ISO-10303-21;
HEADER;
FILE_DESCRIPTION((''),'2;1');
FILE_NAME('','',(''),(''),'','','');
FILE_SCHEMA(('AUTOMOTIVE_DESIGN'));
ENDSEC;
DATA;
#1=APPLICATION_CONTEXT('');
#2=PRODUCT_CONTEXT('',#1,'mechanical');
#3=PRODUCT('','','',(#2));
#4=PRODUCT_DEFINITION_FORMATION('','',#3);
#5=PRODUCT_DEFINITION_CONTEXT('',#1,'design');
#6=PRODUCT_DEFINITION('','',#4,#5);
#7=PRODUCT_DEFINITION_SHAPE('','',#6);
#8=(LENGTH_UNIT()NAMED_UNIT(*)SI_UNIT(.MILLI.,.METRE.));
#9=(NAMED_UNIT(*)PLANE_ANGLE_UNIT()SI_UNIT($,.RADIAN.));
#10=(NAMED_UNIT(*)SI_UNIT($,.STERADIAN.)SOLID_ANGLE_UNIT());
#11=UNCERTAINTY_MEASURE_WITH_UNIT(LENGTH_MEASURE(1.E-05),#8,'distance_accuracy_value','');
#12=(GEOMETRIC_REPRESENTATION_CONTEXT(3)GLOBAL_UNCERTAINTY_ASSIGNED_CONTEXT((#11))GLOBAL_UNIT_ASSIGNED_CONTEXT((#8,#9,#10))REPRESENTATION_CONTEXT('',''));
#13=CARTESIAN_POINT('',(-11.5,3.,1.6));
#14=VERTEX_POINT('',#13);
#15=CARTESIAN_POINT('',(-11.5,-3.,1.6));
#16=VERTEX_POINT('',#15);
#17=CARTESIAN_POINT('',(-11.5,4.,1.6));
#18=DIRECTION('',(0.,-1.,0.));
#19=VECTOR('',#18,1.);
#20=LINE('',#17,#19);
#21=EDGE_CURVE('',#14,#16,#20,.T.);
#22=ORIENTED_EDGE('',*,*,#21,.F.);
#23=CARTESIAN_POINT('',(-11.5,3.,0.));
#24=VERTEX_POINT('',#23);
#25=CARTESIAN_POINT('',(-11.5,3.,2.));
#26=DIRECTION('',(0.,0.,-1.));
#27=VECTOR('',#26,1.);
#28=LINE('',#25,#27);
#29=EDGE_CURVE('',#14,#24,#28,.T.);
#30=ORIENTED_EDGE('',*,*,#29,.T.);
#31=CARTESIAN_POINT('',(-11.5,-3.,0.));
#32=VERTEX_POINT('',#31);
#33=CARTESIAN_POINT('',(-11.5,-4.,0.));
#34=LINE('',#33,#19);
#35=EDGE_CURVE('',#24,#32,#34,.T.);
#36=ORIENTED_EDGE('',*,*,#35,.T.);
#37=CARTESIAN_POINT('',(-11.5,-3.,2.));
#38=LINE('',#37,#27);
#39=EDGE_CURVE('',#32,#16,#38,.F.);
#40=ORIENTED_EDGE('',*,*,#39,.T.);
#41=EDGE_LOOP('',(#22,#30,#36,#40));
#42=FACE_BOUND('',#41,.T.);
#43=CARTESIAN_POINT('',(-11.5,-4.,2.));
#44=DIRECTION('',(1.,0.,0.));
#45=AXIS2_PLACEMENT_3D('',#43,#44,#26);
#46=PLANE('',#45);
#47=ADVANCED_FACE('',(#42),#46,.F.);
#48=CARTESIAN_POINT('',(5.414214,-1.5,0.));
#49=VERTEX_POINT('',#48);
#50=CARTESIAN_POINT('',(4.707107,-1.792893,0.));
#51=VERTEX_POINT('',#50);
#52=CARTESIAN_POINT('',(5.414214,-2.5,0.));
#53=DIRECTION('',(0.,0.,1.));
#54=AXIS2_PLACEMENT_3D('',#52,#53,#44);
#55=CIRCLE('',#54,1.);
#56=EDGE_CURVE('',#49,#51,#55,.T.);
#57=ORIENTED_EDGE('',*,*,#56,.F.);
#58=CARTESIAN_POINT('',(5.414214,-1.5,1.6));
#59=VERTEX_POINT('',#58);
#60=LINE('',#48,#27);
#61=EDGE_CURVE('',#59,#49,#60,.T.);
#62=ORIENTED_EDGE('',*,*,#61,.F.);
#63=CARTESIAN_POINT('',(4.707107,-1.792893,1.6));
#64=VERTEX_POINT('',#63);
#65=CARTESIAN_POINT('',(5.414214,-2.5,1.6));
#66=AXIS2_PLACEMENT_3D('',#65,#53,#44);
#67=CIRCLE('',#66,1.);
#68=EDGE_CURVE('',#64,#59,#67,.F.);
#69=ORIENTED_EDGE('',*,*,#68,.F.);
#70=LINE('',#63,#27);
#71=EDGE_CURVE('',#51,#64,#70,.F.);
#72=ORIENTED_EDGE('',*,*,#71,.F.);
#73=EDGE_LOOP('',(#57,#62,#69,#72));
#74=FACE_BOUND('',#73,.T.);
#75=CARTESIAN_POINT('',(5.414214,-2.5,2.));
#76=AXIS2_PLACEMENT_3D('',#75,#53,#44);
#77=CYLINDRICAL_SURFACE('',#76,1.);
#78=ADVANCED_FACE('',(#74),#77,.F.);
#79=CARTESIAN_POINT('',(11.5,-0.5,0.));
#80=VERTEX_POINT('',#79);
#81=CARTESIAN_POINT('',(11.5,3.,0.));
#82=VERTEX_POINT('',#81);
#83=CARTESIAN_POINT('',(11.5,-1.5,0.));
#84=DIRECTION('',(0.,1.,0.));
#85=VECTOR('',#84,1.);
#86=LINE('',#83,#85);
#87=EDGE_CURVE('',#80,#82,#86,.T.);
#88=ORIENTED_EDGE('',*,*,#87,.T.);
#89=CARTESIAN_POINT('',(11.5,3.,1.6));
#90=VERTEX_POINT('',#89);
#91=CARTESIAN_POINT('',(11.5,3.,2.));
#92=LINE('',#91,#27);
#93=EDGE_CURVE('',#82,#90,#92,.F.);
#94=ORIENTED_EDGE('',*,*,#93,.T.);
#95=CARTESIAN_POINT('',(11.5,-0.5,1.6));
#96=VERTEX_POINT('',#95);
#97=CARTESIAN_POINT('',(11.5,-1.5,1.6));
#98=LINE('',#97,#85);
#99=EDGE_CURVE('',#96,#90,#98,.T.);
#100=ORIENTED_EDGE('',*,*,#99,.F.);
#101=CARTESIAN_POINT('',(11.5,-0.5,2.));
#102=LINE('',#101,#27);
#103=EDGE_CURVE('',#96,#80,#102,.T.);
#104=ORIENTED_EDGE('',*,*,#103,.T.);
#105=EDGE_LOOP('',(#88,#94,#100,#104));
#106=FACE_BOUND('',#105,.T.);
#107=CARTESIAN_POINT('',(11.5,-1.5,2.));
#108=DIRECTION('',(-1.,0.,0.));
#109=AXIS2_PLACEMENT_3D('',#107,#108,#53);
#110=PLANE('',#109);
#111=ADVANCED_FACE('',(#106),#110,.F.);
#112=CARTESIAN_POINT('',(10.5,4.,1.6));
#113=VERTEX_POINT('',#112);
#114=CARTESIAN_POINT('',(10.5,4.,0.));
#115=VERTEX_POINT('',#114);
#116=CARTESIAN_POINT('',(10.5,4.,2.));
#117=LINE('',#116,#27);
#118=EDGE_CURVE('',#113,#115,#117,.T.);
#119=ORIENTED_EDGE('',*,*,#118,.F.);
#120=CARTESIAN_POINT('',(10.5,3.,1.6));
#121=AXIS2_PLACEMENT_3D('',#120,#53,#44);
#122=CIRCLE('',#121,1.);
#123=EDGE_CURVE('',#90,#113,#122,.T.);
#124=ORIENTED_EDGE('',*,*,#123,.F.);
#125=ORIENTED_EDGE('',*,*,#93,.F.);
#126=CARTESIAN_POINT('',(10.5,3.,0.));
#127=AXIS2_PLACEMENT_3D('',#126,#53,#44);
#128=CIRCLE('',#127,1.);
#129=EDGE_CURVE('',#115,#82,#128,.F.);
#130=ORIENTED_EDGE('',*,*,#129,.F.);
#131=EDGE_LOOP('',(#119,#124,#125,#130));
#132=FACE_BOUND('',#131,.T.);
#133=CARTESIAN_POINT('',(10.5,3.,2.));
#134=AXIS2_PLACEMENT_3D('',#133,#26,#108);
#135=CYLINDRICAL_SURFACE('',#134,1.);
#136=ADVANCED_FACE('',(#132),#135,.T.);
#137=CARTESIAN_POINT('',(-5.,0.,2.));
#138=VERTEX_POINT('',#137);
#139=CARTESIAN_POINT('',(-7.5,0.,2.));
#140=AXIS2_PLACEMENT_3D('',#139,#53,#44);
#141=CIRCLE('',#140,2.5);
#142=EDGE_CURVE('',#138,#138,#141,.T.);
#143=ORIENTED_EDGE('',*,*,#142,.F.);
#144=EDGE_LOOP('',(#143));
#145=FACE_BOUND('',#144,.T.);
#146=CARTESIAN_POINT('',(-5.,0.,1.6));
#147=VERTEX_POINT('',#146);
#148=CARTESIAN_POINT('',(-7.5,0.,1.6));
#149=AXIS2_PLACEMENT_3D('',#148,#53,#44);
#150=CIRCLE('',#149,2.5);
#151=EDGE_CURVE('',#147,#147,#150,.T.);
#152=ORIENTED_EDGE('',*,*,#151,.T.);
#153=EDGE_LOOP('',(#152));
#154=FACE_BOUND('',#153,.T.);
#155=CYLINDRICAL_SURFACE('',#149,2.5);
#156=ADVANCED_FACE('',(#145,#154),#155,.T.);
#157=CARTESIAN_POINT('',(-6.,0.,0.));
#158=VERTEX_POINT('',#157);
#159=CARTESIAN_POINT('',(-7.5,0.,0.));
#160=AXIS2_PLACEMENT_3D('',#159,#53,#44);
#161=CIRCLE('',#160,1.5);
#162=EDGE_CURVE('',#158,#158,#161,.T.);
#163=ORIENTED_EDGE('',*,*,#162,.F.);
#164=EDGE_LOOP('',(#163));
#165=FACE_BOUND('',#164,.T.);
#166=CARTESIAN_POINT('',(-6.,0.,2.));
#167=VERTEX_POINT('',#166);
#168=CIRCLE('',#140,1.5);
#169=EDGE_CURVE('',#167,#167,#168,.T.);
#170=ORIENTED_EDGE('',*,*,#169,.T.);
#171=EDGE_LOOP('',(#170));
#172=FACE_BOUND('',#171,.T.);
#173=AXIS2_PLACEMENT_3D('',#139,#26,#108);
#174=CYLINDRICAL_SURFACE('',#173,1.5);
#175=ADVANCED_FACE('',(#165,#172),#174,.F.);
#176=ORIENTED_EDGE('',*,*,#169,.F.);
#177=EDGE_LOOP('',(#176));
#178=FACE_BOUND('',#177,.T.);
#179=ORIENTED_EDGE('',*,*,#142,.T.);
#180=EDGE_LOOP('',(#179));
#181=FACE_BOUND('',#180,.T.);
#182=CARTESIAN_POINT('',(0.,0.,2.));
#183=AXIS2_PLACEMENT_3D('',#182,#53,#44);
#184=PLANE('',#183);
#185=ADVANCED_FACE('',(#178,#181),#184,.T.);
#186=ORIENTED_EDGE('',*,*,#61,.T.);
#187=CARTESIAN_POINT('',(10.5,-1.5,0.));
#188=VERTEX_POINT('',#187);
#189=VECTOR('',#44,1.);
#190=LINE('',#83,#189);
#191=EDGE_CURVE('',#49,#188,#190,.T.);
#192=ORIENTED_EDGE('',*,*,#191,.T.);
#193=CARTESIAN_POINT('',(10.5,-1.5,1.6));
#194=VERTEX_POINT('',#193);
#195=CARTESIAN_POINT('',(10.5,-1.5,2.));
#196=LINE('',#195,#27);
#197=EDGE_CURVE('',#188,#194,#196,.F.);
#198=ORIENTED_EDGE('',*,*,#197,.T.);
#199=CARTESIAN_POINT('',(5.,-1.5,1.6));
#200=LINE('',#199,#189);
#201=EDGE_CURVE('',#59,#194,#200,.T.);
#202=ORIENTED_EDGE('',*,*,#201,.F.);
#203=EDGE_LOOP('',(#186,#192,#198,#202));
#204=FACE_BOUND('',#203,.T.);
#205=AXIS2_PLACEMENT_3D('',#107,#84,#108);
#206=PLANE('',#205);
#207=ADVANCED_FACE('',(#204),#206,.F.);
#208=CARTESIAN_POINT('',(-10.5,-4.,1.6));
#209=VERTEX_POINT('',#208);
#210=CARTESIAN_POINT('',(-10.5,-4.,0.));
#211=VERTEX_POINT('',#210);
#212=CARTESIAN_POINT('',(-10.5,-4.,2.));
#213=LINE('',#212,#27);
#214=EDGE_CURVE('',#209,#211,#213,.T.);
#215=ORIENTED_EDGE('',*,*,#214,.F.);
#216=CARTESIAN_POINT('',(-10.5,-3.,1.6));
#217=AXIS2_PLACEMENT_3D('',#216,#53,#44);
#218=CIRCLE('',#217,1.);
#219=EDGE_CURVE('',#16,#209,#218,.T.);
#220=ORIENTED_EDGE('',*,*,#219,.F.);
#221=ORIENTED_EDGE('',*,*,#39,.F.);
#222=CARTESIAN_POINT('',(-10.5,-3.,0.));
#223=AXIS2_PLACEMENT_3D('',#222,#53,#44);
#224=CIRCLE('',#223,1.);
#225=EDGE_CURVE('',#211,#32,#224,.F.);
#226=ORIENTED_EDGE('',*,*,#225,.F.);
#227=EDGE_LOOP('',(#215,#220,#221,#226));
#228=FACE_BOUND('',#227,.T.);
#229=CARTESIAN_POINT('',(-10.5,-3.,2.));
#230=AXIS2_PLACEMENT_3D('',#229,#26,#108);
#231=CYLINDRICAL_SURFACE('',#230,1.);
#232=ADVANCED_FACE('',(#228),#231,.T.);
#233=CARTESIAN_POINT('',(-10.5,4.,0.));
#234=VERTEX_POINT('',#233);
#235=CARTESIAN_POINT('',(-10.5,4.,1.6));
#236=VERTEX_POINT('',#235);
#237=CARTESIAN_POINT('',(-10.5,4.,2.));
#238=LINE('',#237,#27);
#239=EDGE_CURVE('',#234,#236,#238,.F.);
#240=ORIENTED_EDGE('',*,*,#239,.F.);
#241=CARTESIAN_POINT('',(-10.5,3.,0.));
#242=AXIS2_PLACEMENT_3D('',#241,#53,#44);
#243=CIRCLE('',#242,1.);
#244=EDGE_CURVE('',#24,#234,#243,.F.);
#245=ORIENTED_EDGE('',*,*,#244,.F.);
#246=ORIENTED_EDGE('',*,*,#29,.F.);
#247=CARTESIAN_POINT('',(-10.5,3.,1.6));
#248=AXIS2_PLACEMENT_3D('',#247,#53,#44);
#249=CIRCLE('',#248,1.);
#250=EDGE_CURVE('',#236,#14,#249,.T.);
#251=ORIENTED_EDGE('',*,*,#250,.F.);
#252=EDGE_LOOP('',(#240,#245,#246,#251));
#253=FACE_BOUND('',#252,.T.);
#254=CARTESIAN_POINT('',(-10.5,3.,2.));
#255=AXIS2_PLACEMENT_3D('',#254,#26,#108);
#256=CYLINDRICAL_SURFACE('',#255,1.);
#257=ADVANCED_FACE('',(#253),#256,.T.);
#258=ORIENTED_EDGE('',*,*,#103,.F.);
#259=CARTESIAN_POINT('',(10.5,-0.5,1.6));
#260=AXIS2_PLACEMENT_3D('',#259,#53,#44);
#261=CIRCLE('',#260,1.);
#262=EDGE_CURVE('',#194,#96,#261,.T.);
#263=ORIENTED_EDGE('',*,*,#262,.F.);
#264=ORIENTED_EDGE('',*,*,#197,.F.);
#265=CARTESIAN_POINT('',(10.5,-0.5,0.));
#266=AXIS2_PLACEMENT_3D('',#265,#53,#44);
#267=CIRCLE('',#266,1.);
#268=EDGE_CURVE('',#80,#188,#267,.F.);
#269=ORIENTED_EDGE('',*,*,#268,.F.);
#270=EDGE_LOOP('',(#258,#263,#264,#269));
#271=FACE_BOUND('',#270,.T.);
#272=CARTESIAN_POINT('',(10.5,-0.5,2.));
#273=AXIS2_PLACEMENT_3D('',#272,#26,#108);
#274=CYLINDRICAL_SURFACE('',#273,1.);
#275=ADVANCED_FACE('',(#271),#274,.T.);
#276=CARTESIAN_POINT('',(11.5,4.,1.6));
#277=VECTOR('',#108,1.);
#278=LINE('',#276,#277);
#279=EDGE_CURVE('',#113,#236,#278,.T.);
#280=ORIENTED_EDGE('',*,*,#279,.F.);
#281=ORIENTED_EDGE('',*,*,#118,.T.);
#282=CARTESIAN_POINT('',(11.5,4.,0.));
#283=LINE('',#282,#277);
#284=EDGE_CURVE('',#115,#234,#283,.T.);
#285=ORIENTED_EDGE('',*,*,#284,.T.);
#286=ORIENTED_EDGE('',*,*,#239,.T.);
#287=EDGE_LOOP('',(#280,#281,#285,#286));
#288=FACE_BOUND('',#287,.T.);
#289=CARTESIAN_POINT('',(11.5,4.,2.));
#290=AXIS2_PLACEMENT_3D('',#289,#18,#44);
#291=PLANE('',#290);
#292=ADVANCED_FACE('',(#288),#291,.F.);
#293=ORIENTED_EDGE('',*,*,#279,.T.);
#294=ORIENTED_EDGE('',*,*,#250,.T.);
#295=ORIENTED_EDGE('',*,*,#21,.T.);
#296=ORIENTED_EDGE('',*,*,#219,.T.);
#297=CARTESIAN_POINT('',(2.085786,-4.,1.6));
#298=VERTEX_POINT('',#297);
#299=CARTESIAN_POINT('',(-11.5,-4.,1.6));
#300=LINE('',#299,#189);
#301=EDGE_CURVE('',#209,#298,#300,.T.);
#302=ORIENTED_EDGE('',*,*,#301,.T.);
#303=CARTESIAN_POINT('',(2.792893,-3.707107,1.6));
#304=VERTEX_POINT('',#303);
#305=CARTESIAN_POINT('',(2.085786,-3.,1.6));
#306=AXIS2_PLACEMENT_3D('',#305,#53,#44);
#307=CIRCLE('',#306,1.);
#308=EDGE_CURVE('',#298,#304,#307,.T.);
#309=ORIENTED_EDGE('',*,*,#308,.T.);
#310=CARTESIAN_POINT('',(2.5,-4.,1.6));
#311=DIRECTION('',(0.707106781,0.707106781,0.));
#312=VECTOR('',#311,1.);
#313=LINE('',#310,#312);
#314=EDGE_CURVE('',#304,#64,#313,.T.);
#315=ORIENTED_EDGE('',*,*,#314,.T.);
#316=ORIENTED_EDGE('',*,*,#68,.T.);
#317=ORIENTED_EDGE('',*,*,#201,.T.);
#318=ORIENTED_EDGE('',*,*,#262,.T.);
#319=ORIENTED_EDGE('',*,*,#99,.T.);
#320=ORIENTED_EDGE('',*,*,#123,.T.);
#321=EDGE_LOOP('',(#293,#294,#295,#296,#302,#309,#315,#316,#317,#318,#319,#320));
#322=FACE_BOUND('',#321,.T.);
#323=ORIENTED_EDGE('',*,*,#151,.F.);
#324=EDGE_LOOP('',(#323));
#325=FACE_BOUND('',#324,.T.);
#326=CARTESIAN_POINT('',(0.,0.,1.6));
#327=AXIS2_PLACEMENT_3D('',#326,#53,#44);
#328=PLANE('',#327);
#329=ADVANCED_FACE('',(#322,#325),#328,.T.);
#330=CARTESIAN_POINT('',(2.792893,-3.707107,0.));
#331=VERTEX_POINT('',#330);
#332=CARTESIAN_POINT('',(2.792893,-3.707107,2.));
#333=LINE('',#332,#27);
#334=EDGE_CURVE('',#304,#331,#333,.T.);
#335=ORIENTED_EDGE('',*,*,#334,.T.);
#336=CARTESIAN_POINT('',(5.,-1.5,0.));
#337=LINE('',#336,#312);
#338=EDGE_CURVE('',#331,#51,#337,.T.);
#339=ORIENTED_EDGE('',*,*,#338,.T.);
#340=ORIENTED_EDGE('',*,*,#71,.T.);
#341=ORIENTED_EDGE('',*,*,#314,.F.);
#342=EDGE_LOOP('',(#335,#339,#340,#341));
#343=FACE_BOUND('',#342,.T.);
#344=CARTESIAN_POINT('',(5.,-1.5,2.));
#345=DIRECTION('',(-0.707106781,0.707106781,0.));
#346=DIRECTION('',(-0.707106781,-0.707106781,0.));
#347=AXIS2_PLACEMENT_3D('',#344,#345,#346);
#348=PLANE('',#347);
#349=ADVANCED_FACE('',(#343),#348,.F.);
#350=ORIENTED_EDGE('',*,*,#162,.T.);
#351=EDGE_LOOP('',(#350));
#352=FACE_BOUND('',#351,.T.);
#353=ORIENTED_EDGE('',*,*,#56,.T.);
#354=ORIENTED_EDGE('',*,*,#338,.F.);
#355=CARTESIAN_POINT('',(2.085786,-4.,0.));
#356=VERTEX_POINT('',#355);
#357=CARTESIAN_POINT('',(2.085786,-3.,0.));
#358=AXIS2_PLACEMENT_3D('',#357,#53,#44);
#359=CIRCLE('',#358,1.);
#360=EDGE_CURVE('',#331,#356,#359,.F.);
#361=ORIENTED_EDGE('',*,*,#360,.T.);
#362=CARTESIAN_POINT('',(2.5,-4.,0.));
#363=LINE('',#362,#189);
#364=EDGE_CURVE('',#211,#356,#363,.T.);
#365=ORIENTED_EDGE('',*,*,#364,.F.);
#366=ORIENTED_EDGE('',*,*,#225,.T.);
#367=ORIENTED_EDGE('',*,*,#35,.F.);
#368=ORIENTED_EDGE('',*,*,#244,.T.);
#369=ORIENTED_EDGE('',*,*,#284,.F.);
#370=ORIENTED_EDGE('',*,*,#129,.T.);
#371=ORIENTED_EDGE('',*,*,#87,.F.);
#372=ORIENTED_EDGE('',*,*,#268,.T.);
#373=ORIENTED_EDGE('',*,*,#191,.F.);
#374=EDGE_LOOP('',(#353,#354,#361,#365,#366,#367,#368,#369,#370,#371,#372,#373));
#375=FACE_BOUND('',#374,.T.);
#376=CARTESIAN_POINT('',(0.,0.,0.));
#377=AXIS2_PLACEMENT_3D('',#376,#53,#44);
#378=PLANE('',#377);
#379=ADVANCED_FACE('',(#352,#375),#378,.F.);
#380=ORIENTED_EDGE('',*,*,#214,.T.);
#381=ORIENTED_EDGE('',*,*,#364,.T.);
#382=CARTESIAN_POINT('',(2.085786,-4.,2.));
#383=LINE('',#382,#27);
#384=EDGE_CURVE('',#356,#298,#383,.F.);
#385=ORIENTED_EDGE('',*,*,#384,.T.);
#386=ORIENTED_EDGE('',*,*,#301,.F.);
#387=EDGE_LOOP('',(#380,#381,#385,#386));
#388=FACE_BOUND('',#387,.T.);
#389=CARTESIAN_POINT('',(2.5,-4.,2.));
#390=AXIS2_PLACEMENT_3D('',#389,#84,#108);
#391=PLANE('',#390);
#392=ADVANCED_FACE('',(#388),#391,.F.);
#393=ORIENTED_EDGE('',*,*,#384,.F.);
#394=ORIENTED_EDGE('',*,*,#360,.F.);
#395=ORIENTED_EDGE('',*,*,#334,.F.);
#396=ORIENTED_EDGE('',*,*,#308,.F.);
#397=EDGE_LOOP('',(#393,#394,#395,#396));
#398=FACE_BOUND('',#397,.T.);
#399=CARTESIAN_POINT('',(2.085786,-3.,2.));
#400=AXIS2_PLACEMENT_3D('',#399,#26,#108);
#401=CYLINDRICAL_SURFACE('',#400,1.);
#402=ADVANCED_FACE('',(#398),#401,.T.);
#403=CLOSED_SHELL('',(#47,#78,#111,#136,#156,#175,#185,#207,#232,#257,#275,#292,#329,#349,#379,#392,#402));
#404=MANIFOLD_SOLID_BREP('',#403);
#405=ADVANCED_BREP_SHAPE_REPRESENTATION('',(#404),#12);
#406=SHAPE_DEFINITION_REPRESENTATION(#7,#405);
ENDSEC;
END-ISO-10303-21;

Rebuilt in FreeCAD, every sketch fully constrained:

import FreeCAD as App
import Part
import Sketcher

V = App.Vector
Q = App.Units.Quantity


def edges_at(feature, points):
    """Names of the edges that pass closest to the given points."""
    edges = feature.Shape.Edges
    near = lambda p: min(range(len(edges)), key=lambda i: edges[i].distToShape(Part.Vertex(*p))[0])
    return sorted({f"Edge{near(p) + 1}" for p in points})

doc = App.newDocument("Part")
params = doc.addObject("Spreadsheet::Sheet", "Params")
for row, (alias, value) in enumerate([
    ("sketch1_diameter", "3 mm"),
    ("sketch1_width", "23 mm"),
    ("sketch1_width2", "14 mm"),
    ("sketch1_height", "8 mm"),
    ("sketch1_width3", "6.5 mm"),
    ("pad1_length", "2 mm"),
    ("sketch2_diameter", "5 mm"),
    ("sketch2_width", "14 mm"),
    ("sketch2_width2", "23 mm"),
    ("sketch2_height", "8 mm"),
    ("sketch2_width3", "6.5 mm"),
    ("pocket1_length", "0.4 mm"),
    ("fillet_radius", "1 mm"),
], start=1):
    params.set(f"A{row}", alias)
    params.set(f"B{row}", "=" + value)
    params.setAlias(f"B{row}", alias)

body = doc.addObject("PartDesign::Body", "Body")

# Sketch on XY plane
sketch1 = body.newObject("Sketcher::SketchObject", "Sketch")
sketch1.AttachmentSupport = (doc.getObject("XY_Plane"), [""])
sketch1.MapMode = "FlatFace"
sketch1.addGeometry(Part.LineSegment(V(5, -1.5, 0), V(11.5, -1.5, 0)), False)
sketch1.addGeometry(Part.LineSegment(V(11.5, -1.5, 0), V(11.5, 4, 0)), False)
sketch1.addGeometry(Part.LineSegment(V(11.5, 4, 0), V(-11.5, 4, 0)), False)
sketch1.addGeometry(Part.LineSegment(V(-11.5, 4, 0), V(-11.5, -4, 0)), False)
sketch1.addGeometry(Part.LineSegment(V(-11.5, -4, 0), V(2.5, -4, 0)), False)
sketch1.addGeometry(Part.LineSegment(V(2.5, -4, 0), V(5, -1.5, 0)), False)
sketch1.addGeometry(Part.Circle(V(-7.5, 0, 0), V(0, 0, 1), 1.5), False)
sketch1.addConstraint(Sketcher.Constraint("Coincident", 0, 2, 1, 1))
sketch1.addConstraint(Sketcher.Constraint("Coincident", 1, 2, 2, 1))
sketch1.addConstraint(Sketcher.Constraint("Coincident", 2, 2, 3, 1))
sketch1.addConstraint(Sketcher.Constraint("Coincident", 3, 2, 4, 1))
sketch1.addConstraint(Sketcher.Constraint("Coincident", 4, 2, 5, 1))
sketch1.addConstraint(Sketcher.Constraint("Coincident", 5, 2, 0, 1))
sketch1.addConstraint(Sketcher.Constraint("Horizontal", 0))
sketch1.addConstraint(Sketcher.Constraint("Vertical", 1))
sketch1.addConstraint(Sketcher.Constraint("Horizontal", 2))
sketch1.addConstraint(Sketcher.Constraint("Vertical", 3))
sketch1.addConstraint(Sketcher.Constraint("Horizontal", 4))
sketch1.addConstraint(Sketcher.Constraint("Symmetric", 1, 2, 3, 2, -1, 1))
sketch1.addConstraint(Sketcher.Constraint("PointOnObject", 6, 3, -1))
sketch1.addConstraint(Sketcher.Constraint("Diameter", 6, 3.0))
sketch1.addConstraint(Sketcher.Constraint("DistanceX", 2, 2, 2, 1, 23.0))
sketch1.addConstraint(Sketcher.Constraint("DistanceX", 4, 1, 4, 2, 14.0))
sketch1.addConstraint(Sketcher.Constraint("DistanceY", 3, 2, 3, 1, 8.0))
sketch1.addConstraint(Sketcher.Constraint("Angle", 5, Q("45 deg")))
sketch1.addConstraint(Sketcher.Constraint("DistanceX", 0, 1, 0, 2, 6.5))
sketch1.addConstraint(Sketcher.Constraint("DistanceX", 6, 3, 0, 2, 19.0))
sketch1.setExpression("Constraints[13]", "Params.sketch1_diameter")
sketch1.setExpression("Constraints[14]", "Params.sketch1_width")
sketch1.setExpression("Constraints[15]", "Params.sketch1_width2")
sketch1.setExpression("Constraints[16]", "Params.sketch1_height")
sketch1.setExpression("Constraints[18]", "Params.sketch1_width3")
pad1 = body.newObject("PartDesign::Pad", "Pad")
pad1.Profile = sketch1
pad1.setExpression("Length", "Params.pad1_length")

# Sketch on XY plane
sketch2 = body.newObject("Sketcher::SketchObject", "Sketch001")
sketch2.AttachmentSupport = (doc.getObject("XY_Plane"), [""])
sketch2.MapMode = "FlatFace"
sketch2.AttachmentOffset = App.Placement(V(0, 0, 2), App.Rotation())
sketch2.addGeometry(Part.LineSegment(V(-11.5, 4, 0), V(-11.5, -4, 0)), False)
sketch2.addGeometry(Part.LineSegment(V(-11.5, -4, 0), V(2.5, -4, 0)), False)
sketch2.addGeometry(Part.LineSegment(V(2.5, -4, 0), V(5, -1.5, 0)), False)
sketch2.addGeometry(Part.LineSegment(V(5, -1.5, 0), V(11.5, -1.5, 0)), False)
sketch2.addGeometry(Part.LineSegment(V(11.5, -1.5, 0), V(11.5, 4, 0)), False)
sketch2.addGeometry(Part.LineSegment(V(11.5, 4, 0), V(-11.5, 4, 0)), False)
sketch2.addGeometry(Part.Circle(V(-7.5, 0, 0), V(0, 0, 1), 2.5), False)
sketch2.addConstraint(Sketcher.Constraint("Coincident", 0, 2, 1, 1))
sketch2.addConstraint(Sketcher.Constraint("Coincident", 1, 2, 2, 1))
sketch2.addConstraint(Sketcher.Constraint("Coincident", 2, 2, 3, 1))
sketch2.addConstraint(Sketcher.Constraint("Coincident", 3, 2, 4, 1))
sketch2.addConstraint(Sketcher.Constraint("Coincident", 4, 2, 5, 1))
sketch2.addConstraint(Sketcher.Constraint("Coincident", 5, 2, 0, 1))
sketch2.addConstraint(Sketcher.Constraint("Vertical", 0))
sketch2.addConstraint(Sketcher.Constraint("Horizontal", 1))
sketch2.addConstraint(Sketcher.Constraint("Horizontal", 3))
sketch2.addConstraint(Sketcher.Constraint("Vertical", 4))
sketch2.addConstraint(Sketcher.Constraint("Horizontal", 5))
sketch2.addConstraint(Sketcher.Constraint("Symmetric", 0, 2, 4, 2, -1, 1))
sketch2.addConstraint(Sketcher.Constraint("PointOnObject", 6, 3, -1))
sketch2.addConstraint(Sketcher.Constraint("Diameter", 6, 5.0))
sketch2.addConstraint(Sketcher.Constraint("DistanceX", 1, 1, 1, 2, 14.0))
sketch2.addConstraint(Sketcher.Constraint("DistanceX", 5, 2, 5, 1, 23.0))
sketch2.addConstraint(Sketcher.Constraint("DistanceY", 0, 2, 0, 1, 8.0))
sketch2.addConstraint(Sketcher.Constraint("Angle", 2, Q("45 deg")))
sketch2.addConstraint(Sketcher.Constraint("DistanceX", 3, 1, 3, 2, 6.5))
sketch2.addConstraint(Sketcher.Constraint("DistanceX", 0, 2, 6, 3, 4.0))
sketch2.setExpression("Constraints[13]", "Params.sketch2_diameter")
sketch2.setExpression("Constraints[14]", "Params.sketch2_width")
sketch2.setExpression("Constraints[15]", "Params.sketch2_width2")
sketch2.setExpression("Constraints[16]", "Params.sketch2_height")
sketch2.setExpression("Constraints[18]", "Params.sketch2_width3")
pocket1 = body.newObject("PartDesign::Pocket", "Pocket")
pocket1.Profile = sketch2
pocket1.setExpression("Length", "Params.pocket1_length")
doc.recompute()

fillet = body.newObject("PartDesign::Fillet", "Fillet")
fillet.Base = (pocket1, edges_at(pocket1, [
    (-11.5, 4, 0.8),
    (11.5, 4, 0.8),
    (11.5, -1.5, 0.8),
    (5, -1.5, 0.8),
    (2.5, -4, 0.8),
    (-11.5, -4, 0.8),
]))
fillet.setExpression("Radius", "Params.fillet_radius")

doc.recompute()
